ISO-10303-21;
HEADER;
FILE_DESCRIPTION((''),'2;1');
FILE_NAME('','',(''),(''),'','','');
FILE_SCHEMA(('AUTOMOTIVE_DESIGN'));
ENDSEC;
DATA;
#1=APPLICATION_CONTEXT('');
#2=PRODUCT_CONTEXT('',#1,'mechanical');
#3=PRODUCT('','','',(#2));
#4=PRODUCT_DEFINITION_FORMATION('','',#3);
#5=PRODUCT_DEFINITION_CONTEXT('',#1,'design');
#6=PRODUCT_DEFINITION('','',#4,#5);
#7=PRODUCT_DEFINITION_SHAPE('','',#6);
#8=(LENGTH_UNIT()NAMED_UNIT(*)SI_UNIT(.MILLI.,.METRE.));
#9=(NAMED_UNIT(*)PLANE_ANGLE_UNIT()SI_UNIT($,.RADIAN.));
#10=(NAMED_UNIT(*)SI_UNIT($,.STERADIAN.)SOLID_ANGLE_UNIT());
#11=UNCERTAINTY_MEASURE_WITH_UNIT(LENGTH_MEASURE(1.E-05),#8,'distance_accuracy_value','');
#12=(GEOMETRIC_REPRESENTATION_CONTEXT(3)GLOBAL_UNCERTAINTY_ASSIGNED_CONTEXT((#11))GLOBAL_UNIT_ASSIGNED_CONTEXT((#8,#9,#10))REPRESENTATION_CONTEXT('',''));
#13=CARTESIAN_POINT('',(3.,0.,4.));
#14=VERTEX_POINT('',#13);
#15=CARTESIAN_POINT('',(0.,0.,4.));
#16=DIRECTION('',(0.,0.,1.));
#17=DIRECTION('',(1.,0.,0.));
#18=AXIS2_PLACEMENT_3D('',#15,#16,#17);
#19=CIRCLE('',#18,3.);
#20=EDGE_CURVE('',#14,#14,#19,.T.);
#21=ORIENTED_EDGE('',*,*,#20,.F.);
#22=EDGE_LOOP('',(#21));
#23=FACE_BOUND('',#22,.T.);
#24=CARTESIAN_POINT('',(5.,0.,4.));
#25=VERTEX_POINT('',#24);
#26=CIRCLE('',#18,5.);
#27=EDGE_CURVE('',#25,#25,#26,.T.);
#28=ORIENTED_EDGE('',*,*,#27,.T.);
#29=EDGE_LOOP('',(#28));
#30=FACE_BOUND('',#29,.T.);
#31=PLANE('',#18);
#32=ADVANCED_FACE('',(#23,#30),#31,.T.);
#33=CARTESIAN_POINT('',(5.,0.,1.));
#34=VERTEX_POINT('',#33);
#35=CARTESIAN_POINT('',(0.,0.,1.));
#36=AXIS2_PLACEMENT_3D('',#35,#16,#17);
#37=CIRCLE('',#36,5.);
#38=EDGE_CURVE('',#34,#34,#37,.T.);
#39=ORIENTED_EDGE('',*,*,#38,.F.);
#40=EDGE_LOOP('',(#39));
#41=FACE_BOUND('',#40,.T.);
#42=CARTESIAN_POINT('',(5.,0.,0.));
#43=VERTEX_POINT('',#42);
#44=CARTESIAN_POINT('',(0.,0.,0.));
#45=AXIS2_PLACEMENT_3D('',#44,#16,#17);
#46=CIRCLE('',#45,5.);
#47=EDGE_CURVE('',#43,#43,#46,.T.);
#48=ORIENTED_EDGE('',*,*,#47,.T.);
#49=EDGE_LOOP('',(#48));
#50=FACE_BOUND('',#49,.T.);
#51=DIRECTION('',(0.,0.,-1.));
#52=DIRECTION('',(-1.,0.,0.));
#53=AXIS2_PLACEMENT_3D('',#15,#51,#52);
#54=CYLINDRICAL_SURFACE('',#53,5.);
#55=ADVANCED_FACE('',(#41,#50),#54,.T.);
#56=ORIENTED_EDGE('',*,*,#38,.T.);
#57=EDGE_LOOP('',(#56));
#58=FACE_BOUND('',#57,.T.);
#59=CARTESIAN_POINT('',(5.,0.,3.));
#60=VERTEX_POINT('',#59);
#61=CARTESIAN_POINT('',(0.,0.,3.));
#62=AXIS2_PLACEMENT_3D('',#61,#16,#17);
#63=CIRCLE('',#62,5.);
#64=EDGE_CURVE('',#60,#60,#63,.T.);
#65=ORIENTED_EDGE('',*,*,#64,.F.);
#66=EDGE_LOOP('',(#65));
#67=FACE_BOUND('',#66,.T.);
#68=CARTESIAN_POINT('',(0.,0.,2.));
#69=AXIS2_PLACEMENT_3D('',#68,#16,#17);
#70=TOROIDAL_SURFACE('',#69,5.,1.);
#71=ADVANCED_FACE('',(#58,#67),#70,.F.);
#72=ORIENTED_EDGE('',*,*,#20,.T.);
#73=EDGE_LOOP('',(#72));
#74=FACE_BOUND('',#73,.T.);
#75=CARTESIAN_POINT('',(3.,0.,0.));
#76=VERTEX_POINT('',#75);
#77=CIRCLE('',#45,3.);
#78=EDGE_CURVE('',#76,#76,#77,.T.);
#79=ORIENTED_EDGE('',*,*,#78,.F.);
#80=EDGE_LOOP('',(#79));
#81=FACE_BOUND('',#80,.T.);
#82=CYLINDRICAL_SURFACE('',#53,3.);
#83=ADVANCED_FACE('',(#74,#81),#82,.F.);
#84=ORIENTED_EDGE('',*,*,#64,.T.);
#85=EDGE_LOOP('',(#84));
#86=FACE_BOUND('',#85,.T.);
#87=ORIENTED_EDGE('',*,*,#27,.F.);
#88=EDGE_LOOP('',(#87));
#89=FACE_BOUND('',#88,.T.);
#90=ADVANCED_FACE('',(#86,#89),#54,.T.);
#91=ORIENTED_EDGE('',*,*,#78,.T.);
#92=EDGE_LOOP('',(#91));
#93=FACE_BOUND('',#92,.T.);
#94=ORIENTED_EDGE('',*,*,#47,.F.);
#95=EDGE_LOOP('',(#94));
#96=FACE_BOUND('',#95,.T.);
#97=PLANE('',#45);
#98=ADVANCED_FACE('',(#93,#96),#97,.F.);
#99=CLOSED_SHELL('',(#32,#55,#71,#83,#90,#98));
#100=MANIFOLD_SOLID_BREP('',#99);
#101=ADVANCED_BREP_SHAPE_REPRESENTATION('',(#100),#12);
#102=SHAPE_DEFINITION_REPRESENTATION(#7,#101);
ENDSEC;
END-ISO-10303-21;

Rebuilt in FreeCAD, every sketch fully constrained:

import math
import FreeCAD as App
import Part
import Sketcher
from FreeCAD import Vector

doc = App.newDocument("Part")
body = doc.addObject("PartDesign::Body", "Body")

# Sketch on XY plane
sketch1 = body.newObject("Sketcher::SketchObject", "Sketch")
sketch1.AttachmentSupport = (doc.getObject("XY_Plane"), [""])
sketch1.MapMode = "FlatFace"
sketch1.addGeometry([
    Part.Circle(Vector(0, 0, 0), Vector(0, 0, 1), 5),
    Part.Circle(Vector(0, 0, 0), Vector(0, 0, 1), 3),
], False)
sketch1.addConstraint([
    Sketcher.Constraint("Coincident", 0, 3, -1, 1),
    Sketcher.Constraint("Coincident", 1, 3, -1, 1),
    Sketcher.Constraint("Diameter", 0, 10.0),
    Sketcher.Constraint("Diameter", 1, 6.0),
])
pad1 = body.newObject("PartDesign::Pad", "Pad")
pad1.Profile = sketch1
pad1.Length = 4

# Sketch on YZ plane
sketch2 = body.newObject("Sketcher::SketchObject", "Sketch001")
sketch2.AttachmentSupport = (doc.getObject("YZ_Plane"), [""])
sketch2.MapMode = "FlatFace"
sketch2.addGeometry([
    Part.LineSegment(Vector(5, 1, 0), Vector(5, 3, 0)),
    Part.ArcOfCircle(Part.Circle(Vector(5, 2, 0), Vector(0, 0, 1), 1), math.radians(90), math.radians(270)),
], False)
sketch2.addConstraint([
    Sketcher.Constraint("Coincident", 0, 1, 1, 2),
    Sketcher.Constraint("Coincident", 1, 1, 0, 2),
    Sketcher.Constraint("Vertical", 0),
    Sketcher.Constraint("Vertical", 1, 3, 0, 1),
    Sketcher.Constraint("Radius", 1, 1.0),
    Sketcher.Constraint("DistanceX", -1, 1, 1, 3, 5.0),
    Sketcher.Constraint("DistanceY", -1, 1, 1, 3, 2.0),
])
groove = body.newObject("PartDesign::Groove", "Groove")
groove.Profile = sketch2
groove.ReferenceAxis = (sketch2, ["V_Axis"])
groove.Angle = 360

doc.recompute()
